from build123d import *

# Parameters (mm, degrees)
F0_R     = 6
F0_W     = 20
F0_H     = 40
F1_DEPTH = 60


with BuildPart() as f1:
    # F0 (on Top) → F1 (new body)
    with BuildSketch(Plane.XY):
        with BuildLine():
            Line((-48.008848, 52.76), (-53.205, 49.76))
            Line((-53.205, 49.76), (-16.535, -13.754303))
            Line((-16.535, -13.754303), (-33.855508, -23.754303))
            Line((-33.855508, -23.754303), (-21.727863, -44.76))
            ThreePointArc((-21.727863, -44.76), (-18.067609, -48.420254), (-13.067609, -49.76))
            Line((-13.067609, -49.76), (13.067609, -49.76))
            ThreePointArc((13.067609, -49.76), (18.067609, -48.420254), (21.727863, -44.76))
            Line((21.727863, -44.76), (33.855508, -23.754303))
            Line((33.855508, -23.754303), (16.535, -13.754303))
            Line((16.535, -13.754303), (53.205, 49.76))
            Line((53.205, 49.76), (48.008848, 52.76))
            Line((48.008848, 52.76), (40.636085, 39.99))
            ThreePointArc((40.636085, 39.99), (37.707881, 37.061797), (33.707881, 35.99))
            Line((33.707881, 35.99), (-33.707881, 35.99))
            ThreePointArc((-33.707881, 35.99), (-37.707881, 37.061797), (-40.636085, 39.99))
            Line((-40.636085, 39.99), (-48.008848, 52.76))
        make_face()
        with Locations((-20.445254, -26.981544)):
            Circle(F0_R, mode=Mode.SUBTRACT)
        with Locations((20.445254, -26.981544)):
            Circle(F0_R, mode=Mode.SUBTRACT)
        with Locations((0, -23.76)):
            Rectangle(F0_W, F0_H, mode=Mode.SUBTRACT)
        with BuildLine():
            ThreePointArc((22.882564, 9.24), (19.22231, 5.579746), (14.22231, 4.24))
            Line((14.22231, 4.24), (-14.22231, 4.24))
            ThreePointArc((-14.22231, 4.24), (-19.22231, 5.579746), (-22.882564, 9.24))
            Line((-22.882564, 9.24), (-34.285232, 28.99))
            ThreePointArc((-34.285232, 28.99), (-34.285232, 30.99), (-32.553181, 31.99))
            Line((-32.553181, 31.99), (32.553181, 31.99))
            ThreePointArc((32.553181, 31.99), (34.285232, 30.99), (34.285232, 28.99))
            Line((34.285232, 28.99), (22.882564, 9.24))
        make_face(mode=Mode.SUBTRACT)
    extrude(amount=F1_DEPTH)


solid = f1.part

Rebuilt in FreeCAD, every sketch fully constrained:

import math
import FreeCAD as App
import Part
import Sketcher
Q = App.Units.Quantity


def add_polygon(sketch, points):
    """Adds a closed chain of lines whose ends are joined by coincident constraints."""
    first, n = sketch.GeometryCount, len(points)
    for a, b in zip(points, points[1:] + points[:1]):
        sketch.addGeometry(Part.LineSegment(App.Vector(*a, 0), App.Vector(*b, 0)), False)
    for i in range(n):
        sketch.addConstraint(Sketcher.Constraint("Coincident", first + i, 2, first + (i + 1) % n, 1))

doc = App.newDocument("Part")
body = doc.addObject("PartDesign::Body", "Body")

sketch1 = doc.addObject("Sketcher::SketchObject", "Sketch")
body.addObject(sketch1)
sketch1.AttachmentSupport = (doc.XY_Plane, [""])
sketch1.MapMode = "FlatFace"
sketch1.addGeometry(Part.LineSegment(App.Vector(-48.008848, 52.76, 0), App.Vector(-53.205, 49.76, 0)), False)
sketch1.addGeometry(Part.LineSegment(App.Vector(-53.205, 49.76, 0), App.Vector(-16.535, -13.754303, 0)), False)
sketch1.addGeometry(Part.LineSegment(App.Vector(-16.535, -13.754303, 0), App.Vector(-33.855508, -23.754303, 0)), False)
sketch1.addGeometry(Part.LineSegment(App.Vector(-33.855508, -23.754303, 0), App.Vector(-21.727863, -44.76, 0)), False)
sketch1.addGeometry(Part.ArcOfCircle(Part.Circle(App.Vector(-13.067609, -39.76, 0), App.Vector(0, 0, 1), 10), math.radians(-150), math.radians(-90.000001)), False)
sketch1.addGeometry(Part.LineSegment(App.Vector(-13.067609, -49.76, 0), App.Vector(13.067609, -49.76, 0)), False)
sketch1.addGeometry(Part.ArcOfCircle(Part.Circle(App.Vector(13.067609, -39.76, 0), App.Vector(0, 0, 1), 10), math.radians(-89.999999), math.radians(-30)), False)
sketch1.addGeometry(Part.LineSegment(App.Vector(21.727863, -44.76, 0), App.Vector(33.855508, -23.754303, 0)), False)
sketch1.addGeometry(Part.LineSegment(App.Vector(33.855508, -23.754303, 0), App.Vector(16.535, -13.754303, 0)), False)
sketch1.addGeometry(Part.LineSegment(App.Vector(16.535, -13.754303, 0), App.Vector(53.205, 49.76, 0)), False)
sketch1.addGeometry(Part.LineSegment(App.Vector(53.205, 49.76, 0), App.Vector(48.008848, 52.76, 0)), False)
sketch1.addGeometry(Part.LineSegment(App.Vector(48.008848, 52.76, 0), App.Vector(40.636085, 39.99, 0)), False)
sketch1.addGeometry(Part.ArcOfCircle(Part.Circle(App.Vector(33.70788, 43.990004, 0), App.Vector(0, 0, 1), 8.000004), math.radians(-89.99999), math.radians(-30.000016)), False)
sketch1.addGeometry(Part.LineSegment(App.Vector(33.707881, 35.99, 0), App.Vector(-33.707881, 35.99, 0)), False)
sketch1.addGeometry(Part.ArcOfCircle(Part.Circle(App.Vector(-33.70788, 43.990004, 0), App.Vector(0, 0, 1), 8.000004), math.radians(-149.999984), math.radians(-90.00001)), False)
sketch1.addGeometry(Part.LineSegment(App.Vector(-40.636085, 39.99, 0), App.Vector(-48.008848, 52.76, 0)), False)
sketch1.addGeometry(Part.Circle(App.Vector(-20.445254, -26.981544, 0), App.Vector(0, 0, 1), 6), False)
sketch1.addGeometry(Part.Circle(App.Vector(20.445254, -26.981544, 0), App.Vector(0, 0, 1), 6), False)
add_polygon(sketch1, [(10, -43.76), (-10, -43.76), (-10, -3.76), (10, -3.76)])
sketch1.addGeometry(Part.LineSegment(App.Vector(34.285232, 28.99, 0), App.Vector(22.882564, 9.24, 0)), False)
sketch1.addGeometry(Part.ArcOfCircle(Part.Circle(App.Vector(14.22231, 14.24, 0), App.Vector(0, 0, 1), 10), math.radians(-89.999999), math.radians(-30)), False)
sketch1.addGeometry(Part.LineSegment(App.Vector(14.22231, 4.24, 0), App.Vector(-14.22231, 4.24, 0)), False)
sketch1.addGeometry(Part.ArcOfCircle(Part.Circle(App.Vector(-14.22231, 14.24, 0), App.Vector(0, 0, 1), 10), math.radians(-150), math.radians(-90.000001)), False)
sketch1.addGeometry(Part.LineSegment(App.Vector(-22.882564, 9.24, 0), App.Vector(-34.285232, 28.99, 0)), False)
sketch1.addGeometry(Part.ArcOfCircle(Part.Circle(App.Vector(-32.553181, 29.99, 0), App.Vector(0, 0, 1), 2), math.radians(89.999994), math.radians(210)), False)
sketch1.addGeometry(Part.LineSegment(App.Vector(-32.553181, 31.99, 0), App.Vector(32.553181, 31.99, 0)), False)
sketch1.addGeometry(Part.ArcOfCircle(Part.Circle(App.Vector(32.553181, 29.99, 0), App.Vector(0, 0, 1), 2), math.radians(-30), math.radians(90.000006)), False)
sketch1.addConstraint([
    Sketcher.Constraint("Coincident", 0, 2, 1, 1),
    Sketcher.Constraint("Coincident", 1, 2, 2, 1),
    Sketcher.Constraint("Coincident", 2, 2, 3, 1),
    Sketcher.Constraint("Tangent", 3, 2, 4, 1),
    Sketcher.Constraint("Tangent", 4, 2, 5, 1),
    Sketcher.Constraint("Tangent", 5, 2, 6, 1),
    Sketcher.Constraint("Tangent", 6, 2, 7, 1),
    Sketcher.Constraint("Coincident", 7, 2, 8, 1),
    Sketcher.Constraint("Coincident", 8, 2, 9, 1),
    Sketcher.Constraint("Coincident", 9, 2, 10, 1),
    Sketcher.Constraint("Coincident", 10, 2, 11, 1),
    Sketcher.Constraint("Tangent", 11, 2, 12, 2),
    Sketcher.Constraint("Tangent", 12, 1, 13, 1),
    Sketcher.Constraint("Tangent", 13, 2, 14, 2),
    Sketcher.Constraint("Tangent", 14, 1, 15, 1),
    Sketcher.Constraint("Coincident", 15, 2, 0, 1),
    Sketcher.Constraint("Tangent", 22, 2, 23, 2),
    Sketcher.Constraint("Tangent", 23, 1, 24, 1),
    Sketcher.Constraint("Tangent", 24, 2, 25, 2),
    Sketcher.Constraint("Tangent", 25, 1, 26, 1),
    Sketcher.Constraint("Tangent", 26, 2, 27, 2),
    Sketcher.Constraint("Tangent", 27, 1, 28, 1),
    Sketcher.Constraint("Tangent", 28, 2, 29, 2),
    Sketcher.Constraint("Tangent", 29, 1, 22, 1),
    Sketcher.Constraint("Horizontal", 5),
    Sketcher.Constraint("Horizontal", 13),
    Sketcher.Constraint("Horizontal", 18),
    Sketcher.Constraint("Vertical", 19),
    Sketcher.Constraint("Horizontal", 20),
    Sketcher.Constraint("Vertical", 21),
    Sketcher.Constraint("Horizontal", 24),
    Sketcher.Constraint("Horizontal", 28),
    Sketcher.Constraint("Equal", 4, 6),
    Sketcher.Constraint("Equal", 12, 14),
    Sketcher.Constraint("Equal", 16, 17),
    Sketcher.Constraint("Equal", 6, 23),
    Sketcher.Constraint("Equal", 23, 25),
    Sketcher.Constraint("Equal", 27, 29),
    Sketcher.Constraint("Symmetric", 16, 3, 17, 3, -2),
    Sketcher.Constraint("Symmetric", 3, 2, 6, 2, -2),
    Sketcher.Constraint("Symmetric", 1, 2, 8, 2, -2),
    Sketcher.Constraint("Symmetric", 0, 2, 9, 2, -2),
    Sketcher.Constraint("Symmetric", 11, 2, 14, 1, -2),
    Sketcher.Constraint("Symmetric", 22, 2, 25, 1, -2),
    Sketcher.Constraint("Perpendicular", 0, 1),
    Sketcher.Constraint("Perpendicular", 1, 2),
    Sketcher.Constraint("Perpendicular", 2, 3),
    Sketcher.Constraint("Perpendicular", 7, 8),
    Sketcher.Constraint("Perpendicular", 9, 10),
    Sketcher.Constraint("Perpendicular", 10, 11),
    Sketcher.Constraint("Parallel", 11, 22),
    Sketcher.Constraint("Diameter", 16, 12.0),
    Sketcher.Constraint("Radius", 4, 10.0),
    Sketcher.Constraint("Radius", 27, 2.0),
    Sketcher.Constraint("DistanceX", 18, 2, 18, 1, 20.0),
    Sketcher.Constraint("DistanceY", 19, 1, 19, 2, 40.0),
    Sketcher.Constraint("Angle", 0, Q("-149.999998 deg")),
    Sketcher.Constraint("Distance", 0, 6.0),
    Sketcher.Constraint("Distance", 2, 20.0),
    Sketcher.Constraint("DistanceX", 18, 2, -1, 1, 10.0),
    Sketcher.Constraint("DistanceY", 6, 3, 23, 3, 54.0),
    Sketcher.Constraint("DistanceY", 29, 3, 11, 2, 10.0),
    Sketcher.Constraint("DistanceY", 29, 3, 12, 1, 6.0),
    Sketcher.Constraint("DistanceY", 18, 2, 4, 3, 4.0),
    Sketcher.Constraint("Distance", 1, 73.34),
    Sketcher.Constraint("DistanceY", 4, 3, -1, 1, 39.76),
    Sketcher.Constraint("DistanceY", -1, 1, 27, 3, 29.99),
    Sketcher.Constraint("DistanceY", -1, 1, 0, 2, 49.76),
    Sketcher.Constraint("DistanceX", 0, 2, -1, 1, 53.205),
    Sketcher.Constraint("DistanceX", 24, 2, 24, 1, 28.44462),
    Sketcher.Constraint("DistanceY", 16, 3, 1, 2, 13.227241),
    Sketcher.Constraint("DistanceX", 3, 2, 16, 3, 1.282609),
])
pad1 = doc.addObject("PartDesign::Pad", "Pad")
body.addObject(pad1)
pad1.Profile = sketch1
pad1.Length = 60

doc.recompute()
